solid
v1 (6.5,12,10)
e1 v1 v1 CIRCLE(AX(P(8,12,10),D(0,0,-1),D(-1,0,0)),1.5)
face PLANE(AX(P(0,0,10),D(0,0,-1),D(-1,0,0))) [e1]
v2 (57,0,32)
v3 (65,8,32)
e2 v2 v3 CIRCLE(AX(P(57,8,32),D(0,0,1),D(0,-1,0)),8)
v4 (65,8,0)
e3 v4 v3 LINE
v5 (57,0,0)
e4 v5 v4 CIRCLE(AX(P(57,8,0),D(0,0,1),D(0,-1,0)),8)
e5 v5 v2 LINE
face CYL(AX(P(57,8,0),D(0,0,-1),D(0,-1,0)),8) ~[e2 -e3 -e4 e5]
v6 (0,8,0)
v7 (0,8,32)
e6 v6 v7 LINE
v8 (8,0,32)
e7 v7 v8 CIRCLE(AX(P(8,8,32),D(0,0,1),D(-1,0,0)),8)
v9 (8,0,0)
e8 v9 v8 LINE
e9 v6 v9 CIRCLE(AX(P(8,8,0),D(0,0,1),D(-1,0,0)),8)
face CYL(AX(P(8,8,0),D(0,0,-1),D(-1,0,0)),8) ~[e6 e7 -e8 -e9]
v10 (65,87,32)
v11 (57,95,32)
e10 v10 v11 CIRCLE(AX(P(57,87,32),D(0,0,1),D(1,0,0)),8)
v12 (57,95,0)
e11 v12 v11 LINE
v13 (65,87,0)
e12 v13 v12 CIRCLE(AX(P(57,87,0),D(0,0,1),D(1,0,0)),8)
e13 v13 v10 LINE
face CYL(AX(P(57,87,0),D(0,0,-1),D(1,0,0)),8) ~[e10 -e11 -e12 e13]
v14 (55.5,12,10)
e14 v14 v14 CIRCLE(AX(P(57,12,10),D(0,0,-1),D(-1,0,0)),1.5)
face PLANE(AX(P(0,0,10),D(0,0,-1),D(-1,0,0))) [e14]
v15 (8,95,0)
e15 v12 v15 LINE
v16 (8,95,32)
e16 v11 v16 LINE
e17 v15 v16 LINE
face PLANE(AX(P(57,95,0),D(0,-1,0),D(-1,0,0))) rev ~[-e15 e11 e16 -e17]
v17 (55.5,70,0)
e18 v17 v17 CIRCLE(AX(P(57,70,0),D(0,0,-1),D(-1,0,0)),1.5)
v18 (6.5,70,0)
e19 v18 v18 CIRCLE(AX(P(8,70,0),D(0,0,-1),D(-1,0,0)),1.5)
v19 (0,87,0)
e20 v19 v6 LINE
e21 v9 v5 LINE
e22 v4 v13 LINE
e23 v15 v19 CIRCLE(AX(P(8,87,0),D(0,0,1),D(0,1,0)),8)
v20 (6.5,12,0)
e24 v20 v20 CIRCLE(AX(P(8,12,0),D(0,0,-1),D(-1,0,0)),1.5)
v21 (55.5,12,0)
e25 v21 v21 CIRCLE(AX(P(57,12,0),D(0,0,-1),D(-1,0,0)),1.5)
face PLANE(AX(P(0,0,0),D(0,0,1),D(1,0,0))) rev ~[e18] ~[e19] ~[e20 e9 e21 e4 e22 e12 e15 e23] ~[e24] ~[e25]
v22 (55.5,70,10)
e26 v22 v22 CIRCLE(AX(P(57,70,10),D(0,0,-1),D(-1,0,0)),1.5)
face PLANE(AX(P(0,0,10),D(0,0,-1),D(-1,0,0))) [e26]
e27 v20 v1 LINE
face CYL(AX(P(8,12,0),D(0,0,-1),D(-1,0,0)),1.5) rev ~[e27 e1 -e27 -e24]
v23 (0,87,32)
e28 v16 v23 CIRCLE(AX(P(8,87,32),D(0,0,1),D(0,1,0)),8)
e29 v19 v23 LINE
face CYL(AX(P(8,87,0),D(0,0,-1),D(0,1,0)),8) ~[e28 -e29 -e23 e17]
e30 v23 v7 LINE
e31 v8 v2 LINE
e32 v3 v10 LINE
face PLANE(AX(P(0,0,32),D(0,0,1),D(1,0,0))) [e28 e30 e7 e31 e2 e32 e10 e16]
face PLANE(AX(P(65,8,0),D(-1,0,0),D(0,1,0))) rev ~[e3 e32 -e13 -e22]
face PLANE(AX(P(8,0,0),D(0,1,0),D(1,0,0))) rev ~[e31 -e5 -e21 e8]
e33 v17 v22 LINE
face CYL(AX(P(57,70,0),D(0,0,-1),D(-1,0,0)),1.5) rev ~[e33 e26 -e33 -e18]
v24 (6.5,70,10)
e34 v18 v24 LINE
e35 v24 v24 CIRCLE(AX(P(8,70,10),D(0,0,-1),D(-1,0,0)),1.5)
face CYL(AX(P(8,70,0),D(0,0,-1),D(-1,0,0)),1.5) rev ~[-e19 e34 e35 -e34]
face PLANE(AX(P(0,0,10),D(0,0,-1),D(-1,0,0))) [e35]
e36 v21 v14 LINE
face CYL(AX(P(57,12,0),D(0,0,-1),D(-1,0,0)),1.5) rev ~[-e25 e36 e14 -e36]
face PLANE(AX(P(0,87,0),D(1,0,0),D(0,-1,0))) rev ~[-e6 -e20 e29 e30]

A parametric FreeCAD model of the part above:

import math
import FreeCAD as App
import Part
import Sketcher

V = App.Vector

doc = App.newDocument("Part")
body = doc.addObject("PartDesign::Body", "Body")

# Sketch on XY plane
sketch1 = body.newObject("Sketcher::SketchObject", "Sketch")
sketch1.AttachmentSupport = (doc.getObject("XY_Plane"), [""])
sketch1.MapMode = "FlatFace"
sketch1.addGeometry([
    Part.ArcOfCircle(Part.Circle(V(8, 8, 0), V(0, 0, 1), 8), math.radians(180), math.radians(270)),  # 0
    Part.LineSegment(V(8, 0, 0), V(57, 0, 0)),  # 1
    Part.ArcOfCircle(Part.Circle(V(57, 8, 0), V(0, 0, 1), 8), math.radians(-90), math.radians(0)),  # 2
    Part.LineSegment(V(65, 8, 0), V(65, 87, 0)),  # 3
    Part.ArcOfCircle(Part.Circle(V(57, 87, 0), V(0, 0, 1), 8), math.radians(0), math.radians(90)),  # 4
    Part.LineSegment(V(57, 95, 0), V(8, 95, 0)),  # 5
    Part.ArcOfCircle(Part.Circle(V(8, 87, 0), V(0, 0, 1), 8), math.radians(90), math.radians(180)),  # 6
    Part.LineSegment(V(0, 87, 0), V(0, 8, 0)),  # 7
], False)
sketch1.addConstraint([
    Sketcher.Constraint("Tangent", 0, 2, 1, 1),
    Sketcher.Constraint("Tangent", 1, 2, 2, 1),
    Sketcher.Constraint("Tangent", 2, 2, 3, 1),
    Sketcher.Constraint("Tangent", 3, 2, 4, 1),
    Sketcher.Constraint("Tangent", 4, 2, 5, 1),
    Sketcher.Constraint("Tangent", 5, 2, 6, 1),
    Sketcher.Constraint("Tangent", 6, 2, 7, 1),
    Sketcher.Constraint("Tangent", 7, 2, 0, 1),
    Sketcher.Constraint("Horizontal", 1),
    Sketcher.Constraint("Vertical", 3),
    Sketcher.Constraint("Horizontal", 5),
    Sketcher.Constraint("Vertical", 7),
    Sketcher.Constraint("Equal", 0, 2),
    Sketcher.Constraint("Equal", 2, 4),
    Sketcher.Constraint("Equal", 4, 6),
    Sketcher.Constraint("PointOnObject", 0, 2, -1),
    Sketcher.Constraint("PointOnObject", 6, 2, -2),
    Sketcher.Constraint("Radius", 0, 8.0),
    Sketcher.Constraint("DistanceX", -1, 1, 2, 2, 65.0),
    Sketcher.Constraint("DistanceY", -1, 1, 4, 2, 95.0),
])
pad1 = body.newObject("PartDesign::Pad", "Pad")
pad1.Profile = sketch1
pad1.Length = 32

# Sketch on XY plane
sketch2 = body.newObject("Sketcher::SketchObject", "Sketch001")
sketch2.AttachmentSupport = (doc.getObject("XY_Plane"), [""])
sketch2.MapMode = "FlatFace"
sketch2.addGeometry([
    Part.Circle(V(57, 12, 0), V(0, 0, 1), 1.5),
    Part.Circle(V(57, 70, 0), V(0, 0, 1), 1.5),
    Part.Circle(V(8, 70, 0), V(0, 0, 1), 1.5),
    Part.Circle(V(8, 12, 0), V(0, 0, 1), 1.5),
], False)
sketch2.addConstraint([
    Sketcher.Constraint("Equal", 0, 1),
    Sketcher.Constraint("Equal", 1, 2),
    Sketcher.Constraint("Equal", 2, 3),
    Sketcher.Constraint("Horizontal", 1, 3, 2, 3),
    Sketcher.Constraint("Horizontal", 0, 3, 3, 3),
    Sketcher.Constraint("Vertical", 0, 3, 1, 3),
    Sketcher.Constraint("Vertical", 2, 3, 3, 3),
    Sketcher.Constraint("Diameter", 0, 3.0),
    Sketcher.Constraint("DistanceY", -1, 1, 0, 3, 12.0),
    Sketcher.Constraint("DistanceY", 0, 3, 1, 3, 58.0),
    Sketcher.Constraint("DistanceX", 2, 3, 1, 3, 49.0),
    Sketcher.Constraint("DistanceX", -1, 1, 0, 3, 57.0),
])
pocket1 = body.newObject("PartDesign::Pocket", "Pocket")
pocket1.Profile = sketch2
pocket1.Length = 10
pocket1.Reversed = True

doc.recompute()
